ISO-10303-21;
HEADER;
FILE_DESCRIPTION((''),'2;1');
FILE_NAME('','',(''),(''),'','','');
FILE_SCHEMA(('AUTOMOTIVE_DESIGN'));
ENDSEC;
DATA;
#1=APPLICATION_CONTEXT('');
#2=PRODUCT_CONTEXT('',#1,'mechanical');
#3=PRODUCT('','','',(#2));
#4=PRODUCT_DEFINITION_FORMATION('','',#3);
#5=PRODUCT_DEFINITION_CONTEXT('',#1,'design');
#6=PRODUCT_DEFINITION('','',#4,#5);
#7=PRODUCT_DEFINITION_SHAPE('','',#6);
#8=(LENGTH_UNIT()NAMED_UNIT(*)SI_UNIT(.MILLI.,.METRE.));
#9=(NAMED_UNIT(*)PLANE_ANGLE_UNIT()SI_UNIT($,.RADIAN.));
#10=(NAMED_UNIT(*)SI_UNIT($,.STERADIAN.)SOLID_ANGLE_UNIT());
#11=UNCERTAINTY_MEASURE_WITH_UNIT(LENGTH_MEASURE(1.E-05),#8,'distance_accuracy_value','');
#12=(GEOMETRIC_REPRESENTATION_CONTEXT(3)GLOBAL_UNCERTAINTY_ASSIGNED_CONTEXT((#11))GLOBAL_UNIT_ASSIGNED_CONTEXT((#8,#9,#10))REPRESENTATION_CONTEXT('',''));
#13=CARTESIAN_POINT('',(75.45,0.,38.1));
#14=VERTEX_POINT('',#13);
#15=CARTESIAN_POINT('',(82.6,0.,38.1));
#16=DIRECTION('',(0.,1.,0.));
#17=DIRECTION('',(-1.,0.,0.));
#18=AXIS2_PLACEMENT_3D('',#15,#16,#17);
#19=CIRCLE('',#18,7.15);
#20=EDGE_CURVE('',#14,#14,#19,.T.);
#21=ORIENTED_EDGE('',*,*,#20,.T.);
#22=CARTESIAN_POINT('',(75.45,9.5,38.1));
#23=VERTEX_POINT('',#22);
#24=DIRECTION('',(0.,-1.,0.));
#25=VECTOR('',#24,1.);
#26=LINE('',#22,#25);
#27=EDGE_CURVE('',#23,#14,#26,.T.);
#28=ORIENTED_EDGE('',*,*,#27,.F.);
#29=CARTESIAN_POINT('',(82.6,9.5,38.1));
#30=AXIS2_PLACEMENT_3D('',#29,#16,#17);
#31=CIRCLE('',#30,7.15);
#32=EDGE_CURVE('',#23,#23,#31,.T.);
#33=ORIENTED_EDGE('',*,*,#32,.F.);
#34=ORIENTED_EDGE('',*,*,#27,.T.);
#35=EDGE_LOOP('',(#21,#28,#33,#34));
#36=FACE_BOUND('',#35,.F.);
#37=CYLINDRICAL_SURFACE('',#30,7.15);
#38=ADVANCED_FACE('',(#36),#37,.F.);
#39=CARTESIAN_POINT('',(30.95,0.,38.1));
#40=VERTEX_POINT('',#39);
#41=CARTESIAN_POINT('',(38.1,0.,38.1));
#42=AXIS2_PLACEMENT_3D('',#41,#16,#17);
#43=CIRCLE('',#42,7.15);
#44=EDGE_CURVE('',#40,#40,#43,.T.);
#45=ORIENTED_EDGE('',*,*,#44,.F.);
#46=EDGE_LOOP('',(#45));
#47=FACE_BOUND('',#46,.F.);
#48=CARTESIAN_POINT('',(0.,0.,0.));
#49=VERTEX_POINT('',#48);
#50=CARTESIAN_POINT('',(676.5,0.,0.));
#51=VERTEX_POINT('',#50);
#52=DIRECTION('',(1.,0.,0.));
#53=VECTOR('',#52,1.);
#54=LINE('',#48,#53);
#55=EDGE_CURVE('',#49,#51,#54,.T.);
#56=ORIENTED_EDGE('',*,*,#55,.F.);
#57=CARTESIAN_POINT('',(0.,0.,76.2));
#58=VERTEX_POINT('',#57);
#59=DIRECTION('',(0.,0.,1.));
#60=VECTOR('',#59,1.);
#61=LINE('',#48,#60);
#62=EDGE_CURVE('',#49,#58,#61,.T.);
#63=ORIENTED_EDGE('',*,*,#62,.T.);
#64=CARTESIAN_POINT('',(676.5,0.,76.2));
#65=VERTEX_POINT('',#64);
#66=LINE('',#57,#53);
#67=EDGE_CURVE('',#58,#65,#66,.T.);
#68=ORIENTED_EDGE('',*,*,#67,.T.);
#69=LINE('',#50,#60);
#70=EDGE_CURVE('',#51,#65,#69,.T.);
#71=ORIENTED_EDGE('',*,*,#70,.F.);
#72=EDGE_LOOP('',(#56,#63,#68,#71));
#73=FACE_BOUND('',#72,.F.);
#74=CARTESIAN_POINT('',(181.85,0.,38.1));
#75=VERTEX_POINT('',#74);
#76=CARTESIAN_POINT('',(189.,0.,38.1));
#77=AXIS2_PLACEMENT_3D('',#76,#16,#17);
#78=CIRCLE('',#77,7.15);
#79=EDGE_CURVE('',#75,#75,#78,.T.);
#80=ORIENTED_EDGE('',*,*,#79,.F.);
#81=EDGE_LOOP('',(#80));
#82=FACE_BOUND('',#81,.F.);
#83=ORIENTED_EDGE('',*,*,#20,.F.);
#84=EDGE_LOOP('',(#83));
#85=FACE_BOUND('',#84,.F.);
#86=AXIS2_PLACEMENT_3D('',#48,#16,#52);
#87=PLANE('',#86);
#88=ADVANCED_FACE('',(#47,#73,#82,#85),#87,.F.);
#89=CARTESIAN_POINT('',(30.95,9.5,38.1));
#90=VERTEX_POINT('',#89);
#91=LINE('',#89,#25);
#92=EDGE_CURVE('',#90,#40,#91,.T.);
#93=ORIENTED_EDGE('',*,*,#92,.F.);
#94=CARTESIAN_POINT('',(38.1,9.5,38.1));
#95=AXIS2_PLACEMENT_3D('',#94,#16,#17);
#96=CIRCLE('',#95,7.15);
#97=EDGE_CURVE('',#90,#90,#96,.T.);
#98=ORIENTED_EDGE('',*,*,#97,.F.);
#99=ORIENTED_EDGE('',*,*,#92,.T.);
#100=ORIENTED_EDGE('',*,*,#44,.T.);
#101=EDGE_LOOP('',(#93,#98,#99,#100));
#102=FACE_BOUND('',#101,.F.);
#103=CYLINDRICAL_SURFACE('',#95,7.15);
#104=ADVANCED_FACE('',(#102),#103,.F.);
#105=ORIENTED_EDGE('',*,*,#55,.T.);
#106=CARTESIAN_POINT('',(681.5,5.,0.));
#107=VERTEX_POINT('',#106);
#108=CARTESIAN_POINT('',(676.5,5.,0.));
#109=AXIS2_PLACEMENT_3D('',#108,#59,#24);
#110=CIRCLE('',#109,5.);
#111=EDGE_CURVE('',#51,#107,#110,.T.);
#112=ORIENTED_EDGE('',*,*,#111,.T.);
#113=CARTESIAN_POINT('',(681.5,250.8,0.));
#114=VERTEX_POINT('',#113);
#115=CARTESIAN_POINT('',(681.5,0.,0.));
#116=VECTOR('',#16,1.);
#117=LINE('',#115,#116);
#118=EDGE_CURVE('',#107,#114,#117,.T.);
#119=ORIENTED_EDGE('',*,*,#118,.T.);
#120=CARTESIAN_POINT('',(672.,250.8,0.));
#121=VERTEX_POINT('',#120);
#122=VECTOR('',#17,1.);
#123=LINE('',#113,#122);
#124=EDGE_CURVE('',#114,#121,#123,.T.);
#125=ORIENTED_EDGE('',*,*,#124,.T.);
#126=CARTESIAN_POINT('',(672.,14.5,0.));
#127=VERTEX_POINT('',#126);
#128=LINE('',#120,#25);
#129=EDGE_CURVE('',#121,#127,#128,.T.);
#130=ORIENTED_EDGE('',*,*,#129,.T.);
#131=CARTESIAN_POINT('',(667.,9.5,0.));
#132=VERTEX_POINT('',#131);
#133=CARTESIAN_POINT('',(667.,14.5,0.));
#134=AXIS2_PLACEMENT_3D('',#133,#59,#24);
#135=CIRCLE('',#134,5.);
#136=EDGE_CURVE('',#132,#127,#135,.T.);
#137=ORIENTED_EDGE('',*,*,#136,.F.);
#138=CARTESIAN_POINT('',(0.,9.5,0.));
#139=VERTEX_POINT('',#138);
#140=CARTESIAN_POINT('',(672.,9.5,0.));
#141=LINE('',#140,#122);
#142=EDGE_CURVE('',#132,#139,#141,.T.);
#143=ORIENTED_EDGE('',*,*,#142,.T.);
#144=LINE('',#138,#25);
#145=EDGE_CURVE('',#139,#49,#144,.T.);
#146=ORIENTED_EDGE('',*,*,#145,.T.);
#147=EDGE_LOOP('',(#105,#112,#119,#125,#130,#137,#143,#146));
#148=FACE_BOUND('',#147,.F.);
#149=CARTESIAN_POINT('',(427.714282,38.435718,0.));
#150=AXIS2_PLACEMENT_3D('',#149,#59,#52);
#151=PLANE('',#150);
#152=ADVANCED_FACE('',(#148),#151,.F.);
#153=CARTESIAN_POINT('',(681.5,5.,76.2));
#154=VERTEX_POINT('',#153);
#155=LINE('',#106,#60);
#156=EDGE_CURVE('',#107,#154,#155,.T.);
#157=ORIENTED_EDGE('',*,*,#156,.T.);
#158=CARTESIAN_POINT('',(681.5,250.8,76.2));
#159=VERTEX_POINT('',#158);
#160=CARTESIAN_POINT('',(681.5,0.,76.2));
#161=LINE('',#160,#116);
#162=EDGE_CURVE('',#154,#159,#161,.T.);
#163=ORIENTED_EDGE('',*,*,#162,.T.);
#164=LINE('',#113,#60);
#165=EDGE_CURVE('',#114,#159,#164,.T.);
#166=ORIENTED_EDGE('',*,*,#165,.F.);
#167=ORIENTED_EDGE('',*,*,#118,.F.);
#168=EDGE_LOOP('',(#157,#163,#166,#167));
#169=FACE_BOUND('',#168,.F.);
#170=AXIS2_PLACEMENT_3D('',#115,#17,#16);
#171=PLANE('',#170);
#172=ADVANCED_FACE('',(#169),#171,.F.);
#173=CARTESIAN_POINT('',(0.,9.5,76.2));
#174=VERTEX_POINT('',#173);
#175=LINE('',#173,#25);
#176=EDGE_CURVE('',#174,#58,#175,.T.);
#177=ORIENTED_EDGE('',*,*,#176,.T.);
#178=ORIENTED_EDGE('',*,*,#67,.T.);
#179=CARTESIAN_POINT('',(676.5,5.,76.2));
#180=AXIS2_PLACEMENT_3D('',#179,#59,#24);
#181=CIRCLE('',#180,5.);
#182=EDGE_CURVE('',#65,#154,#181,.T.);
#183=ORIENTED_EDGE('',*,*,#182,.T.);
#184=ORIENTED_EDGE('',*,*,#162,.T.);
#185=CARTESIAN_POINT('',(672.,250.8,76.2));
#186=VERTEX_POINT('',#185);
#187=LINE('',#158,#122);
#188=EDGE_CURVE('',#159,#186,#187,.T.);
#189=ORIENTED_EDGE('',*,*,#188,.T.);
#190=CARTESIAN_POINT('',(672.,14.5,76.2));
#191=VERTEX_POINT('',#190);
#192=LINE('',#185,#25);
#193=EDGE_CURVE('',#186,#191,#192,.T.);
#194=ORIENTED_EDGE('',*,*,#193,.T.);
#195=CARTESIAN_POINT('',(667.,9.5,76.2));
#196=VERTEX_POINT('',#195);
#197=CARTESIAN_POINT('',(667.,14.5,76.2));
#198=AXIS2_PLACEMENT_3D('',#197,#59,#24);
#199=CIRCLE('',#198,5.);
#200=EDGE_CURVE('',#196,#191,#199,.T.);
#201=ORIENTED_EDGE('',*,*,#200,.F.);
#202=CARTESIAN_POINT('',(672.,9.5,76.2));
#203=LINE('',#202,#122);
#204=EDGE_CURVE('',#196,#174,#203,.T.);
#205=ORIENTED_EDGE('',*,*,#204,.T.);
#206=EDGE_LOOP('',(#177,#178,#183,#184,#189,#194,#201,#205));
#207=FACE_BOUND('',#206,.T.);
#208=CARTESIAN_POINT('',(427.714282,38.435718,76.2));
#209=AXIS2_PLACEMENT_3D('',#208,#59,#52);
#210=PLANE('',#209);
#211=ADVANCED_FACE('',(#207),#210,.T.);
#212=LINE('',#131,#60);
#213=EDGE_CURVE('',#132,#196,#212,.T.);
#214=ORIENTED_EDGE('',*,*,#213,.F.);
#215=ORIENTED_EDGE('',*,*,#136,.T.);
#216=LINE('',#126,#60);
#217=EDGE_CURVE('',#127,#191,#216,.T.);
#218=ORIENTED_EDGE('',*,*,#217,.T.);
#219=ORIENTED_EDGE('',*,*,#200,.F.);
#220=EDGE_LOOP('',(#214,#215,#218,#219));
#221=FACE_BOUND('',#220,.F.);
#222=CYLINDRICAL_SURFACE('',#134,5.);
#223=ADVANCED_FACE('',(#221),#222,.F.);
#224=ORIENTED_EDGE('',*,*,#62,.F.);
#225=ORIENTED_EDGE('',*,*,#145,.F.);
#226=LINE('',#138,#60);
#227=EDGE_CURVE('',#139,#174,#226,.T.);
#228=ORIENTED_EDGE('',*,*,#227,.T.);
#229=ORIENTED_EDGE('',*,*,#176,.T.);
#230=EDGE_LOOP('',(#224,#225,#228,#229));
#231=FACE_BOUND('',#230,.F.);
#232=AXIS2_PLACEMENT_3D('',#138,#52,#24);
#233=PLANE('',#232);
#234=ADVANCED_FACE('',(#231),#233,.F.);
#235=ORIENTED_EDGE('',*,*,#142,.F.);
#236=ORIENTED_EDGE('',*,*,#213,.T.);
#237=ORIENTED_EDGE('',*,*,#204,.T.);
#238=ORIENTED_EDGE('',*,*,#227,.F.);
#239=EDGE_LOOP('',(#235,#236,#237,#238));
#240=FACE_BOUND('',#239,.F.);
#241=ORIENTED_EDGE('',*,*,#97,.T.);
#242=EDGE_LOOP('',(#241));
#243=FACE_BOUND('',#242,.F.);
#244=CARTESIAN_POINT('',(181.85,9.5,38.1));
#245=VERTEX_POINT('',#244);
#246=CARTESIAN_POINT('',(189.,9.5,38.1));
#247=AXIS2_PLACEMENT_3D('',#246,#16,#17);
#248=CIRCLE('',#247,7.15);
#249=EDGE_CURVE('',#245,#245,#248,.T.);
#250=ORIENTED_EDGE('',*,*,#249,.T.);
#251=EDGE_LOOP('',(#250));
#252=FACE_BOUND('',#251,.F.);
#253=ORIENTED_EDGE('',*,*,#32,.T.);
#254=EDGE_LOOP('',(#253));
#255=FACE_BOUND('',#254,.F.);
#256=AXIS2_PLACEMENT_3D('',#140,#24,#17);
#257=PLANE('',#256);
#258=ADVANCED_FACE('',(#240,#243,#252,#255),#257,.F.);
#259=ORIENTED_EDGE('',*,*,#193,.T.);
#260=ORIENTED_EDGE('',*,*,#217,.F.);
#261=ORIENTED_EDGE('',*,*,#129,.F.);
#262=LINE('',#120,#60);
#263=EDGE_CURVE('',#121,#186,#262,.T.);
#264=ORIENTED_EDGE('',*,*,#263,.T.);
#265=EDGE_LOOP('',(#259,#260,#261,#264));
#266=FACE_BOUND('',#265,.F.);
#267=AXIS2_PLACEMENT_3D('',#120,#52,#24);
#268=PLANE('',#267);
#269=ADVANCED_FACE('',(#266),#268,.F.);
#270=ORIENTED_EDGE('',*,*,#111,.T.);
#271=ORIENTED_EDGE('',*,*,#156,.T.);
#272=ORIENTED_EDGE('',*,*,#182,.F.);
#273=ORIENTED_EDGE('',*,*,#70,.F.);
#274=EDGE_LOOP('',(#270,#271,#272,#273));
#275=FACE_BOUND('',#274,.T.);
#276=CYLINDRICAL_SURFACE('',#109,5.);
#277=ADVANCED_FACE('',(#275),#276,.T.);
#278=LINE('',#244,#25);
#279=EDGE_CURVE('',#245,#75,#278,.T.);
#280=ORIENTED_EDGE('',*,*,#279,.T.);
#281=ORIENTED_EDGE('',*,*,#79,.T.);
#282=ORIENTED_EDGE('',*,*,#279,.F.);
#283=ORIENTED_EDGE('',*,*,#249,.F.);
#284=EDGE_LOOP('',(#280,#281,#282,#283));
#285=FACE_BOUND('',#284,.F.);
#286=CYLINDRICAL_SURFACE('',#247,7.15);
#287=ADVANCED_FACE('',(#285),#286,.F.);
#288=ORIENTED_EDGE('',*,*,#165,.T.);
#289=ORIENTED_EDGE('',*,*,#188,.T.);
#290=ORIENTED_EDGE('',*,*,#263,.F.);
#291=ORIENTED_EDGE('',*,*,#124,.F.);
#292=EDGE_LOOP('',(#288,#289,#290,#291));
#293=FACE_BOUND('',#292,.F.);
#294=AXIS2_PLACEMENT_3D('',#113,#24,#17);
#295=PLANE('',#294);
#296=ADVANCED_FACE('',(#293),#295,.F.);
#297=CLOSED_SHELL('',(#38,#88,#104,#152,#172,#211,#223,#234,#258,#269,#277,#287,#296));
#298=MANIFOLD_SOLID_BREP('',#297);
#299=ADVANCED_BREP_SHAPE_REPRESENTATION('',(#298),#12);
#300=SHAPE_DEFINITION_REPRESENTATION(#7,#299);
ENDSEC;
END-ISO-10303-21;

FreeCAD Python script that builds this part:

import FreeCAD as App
import Part
import Sketcher

V = App.Vector
Q = App.Units.Quantity


def edges_at(feature, points):
    """Names of the edges that pass closest to the given points."""
    edges = feature.Shape.Edges
    near = lambda p: min(range(len(edges)), key=lambda i: edges[i].distToShape(Part.Vertex(*p))[0])
    return sorted({f"Edge{near(p) + 1}" for p in points})


def add_polygon(sketch, points):
    """Adds a closed chain of lines whose ends are joined by coincident constraints."""
    first, n = sketch.GeometryCount, len(points)
    for a, b in zip(points, points[1:] + points[:1]):
        sketch.addGeometry(Part.LineSegment(App.Vector(*a, 0), App.Vector(*b, 0)), False)
    for i in range(n):
        sketch.addConstraint(Sketcher.Constraint("Coincident", first + i, 2, first + (i + 1) % n, 1))

doc = App.newDocument("Part")
body = doc.addObject("PartDesign::Body", "Body")

# Sketch on XY plane
sketch1 = body.newObject("Sketcher::SketchObject", "Sketch")
sketch1.AttachmentSupport = (doc.getObject("XY_Plane"), [""])
sketch1.MapMode = "FlatFace"
add_polygon(sketch1, [(0, 10), (0, 0), (682, 0), (682, 251), (672, 251), (672, 10)])  # lines 0-5
sketch1.addConstraint([
    Sketcher.Constraint("Vertical", 0),
    Sketcher.Constraint("Horizontal", 1),
    Sketcher.Constraint("Vertical", 2),
    Sketcher.Constraint("Horizontal", 3),
    Sketcher.Constraint("Vertical", 4),
    Sketcher.Constraint("Horizontal", 5),
    Sketcher.Constraint("Coincident", 0, 2, -1, 1),
    Sketcher.Constraint("Equal", 3, 0),
    Sketcher.Constraint("DistanceX", 5, 2, 5, 1, Q("672 mm")),
    Sketcher.Constraint("DistanceX", 1, 1, 1, 2, Q("681.5 mm")),
    Sketcher.Constraint("DistanceY", 2, 1, 2, 2, Q("250.8 mm")),
])
pad1 = body.newObject("PartDesign::Pad", "Pad")
pad1.Profile = sketch1
pad1.Length = 76.2

# Sketch on XZ plane
sketch2 = body.newObject("Sketcher::SketchObject", "Sketch001")
sketch2.AttachmentSupport = (doc.getObject("XZ_Plane"), [""])
sketch2.MapMode = "FlatFace"
sketch2.AttachmentOffset = App.Placement(V(0, 0, -9.5), App.Rotation())
sketch2.addGeometry([
    Part.Circle(V(38, 38, 0), V(0, 0, 1), 7),
    Part.Circle(V(83, 38, 0), V(0, 0, 1), 7),
    Part.Circle(V(189, 38, 0), V(0, 0, 1), 7),
], False)
sketch2.addConstraint([
    Sketcher.Constraint("Equal", 0, 1),
    Sketcher.Constraint("Equal", 1, 2),
    Sketcher.Constraint("Horizontal", 0, 3, 1, 3),
    Sketcher.Constraint("Horizontal", 1, 3, 2, 3),
    Sketcher.Constraint("Diameter", 0, Q("14.3 mm")),
    Sketcher.Constraint("DistanceX", -1, 1, 2, 3, Q("189 mm")),
    Sketcher.Constraint("DistanceX", -1, 1, 0, 3, Q("38.1 mm")),
    Sketcher.Constraint("DistanceY", -1, 1, 0, 3, Q("38.1 mm")),
    Sketcher.Constraint("DistanceX", -1, 1, 1, 3, Q("82.6 mm")),
])
pocket1 = body.newObject("PartDesign::Pocket", "Pocket")
pocket1.Profile = sketch2
pocket1.Type = "ThroughAll"
pocket1.Reversed = True
doc.recompute()

fillet = body.newObject("PartDesign::Fillet", "Fillet")
fillet.Base = (pocket1, edges_at(pocket1, [(681.5, 0, 38.1)]))
fillet.Radius = 5
doc.recompute()

fillet2 = body.newObject("PartDesign::Fillet", "Fillet001")
fillet2.Base = (fillet, edges_at(fillet, [(672, 9.5, 38.1)]))
fillet2.Radius = 5

doc.recompute()
